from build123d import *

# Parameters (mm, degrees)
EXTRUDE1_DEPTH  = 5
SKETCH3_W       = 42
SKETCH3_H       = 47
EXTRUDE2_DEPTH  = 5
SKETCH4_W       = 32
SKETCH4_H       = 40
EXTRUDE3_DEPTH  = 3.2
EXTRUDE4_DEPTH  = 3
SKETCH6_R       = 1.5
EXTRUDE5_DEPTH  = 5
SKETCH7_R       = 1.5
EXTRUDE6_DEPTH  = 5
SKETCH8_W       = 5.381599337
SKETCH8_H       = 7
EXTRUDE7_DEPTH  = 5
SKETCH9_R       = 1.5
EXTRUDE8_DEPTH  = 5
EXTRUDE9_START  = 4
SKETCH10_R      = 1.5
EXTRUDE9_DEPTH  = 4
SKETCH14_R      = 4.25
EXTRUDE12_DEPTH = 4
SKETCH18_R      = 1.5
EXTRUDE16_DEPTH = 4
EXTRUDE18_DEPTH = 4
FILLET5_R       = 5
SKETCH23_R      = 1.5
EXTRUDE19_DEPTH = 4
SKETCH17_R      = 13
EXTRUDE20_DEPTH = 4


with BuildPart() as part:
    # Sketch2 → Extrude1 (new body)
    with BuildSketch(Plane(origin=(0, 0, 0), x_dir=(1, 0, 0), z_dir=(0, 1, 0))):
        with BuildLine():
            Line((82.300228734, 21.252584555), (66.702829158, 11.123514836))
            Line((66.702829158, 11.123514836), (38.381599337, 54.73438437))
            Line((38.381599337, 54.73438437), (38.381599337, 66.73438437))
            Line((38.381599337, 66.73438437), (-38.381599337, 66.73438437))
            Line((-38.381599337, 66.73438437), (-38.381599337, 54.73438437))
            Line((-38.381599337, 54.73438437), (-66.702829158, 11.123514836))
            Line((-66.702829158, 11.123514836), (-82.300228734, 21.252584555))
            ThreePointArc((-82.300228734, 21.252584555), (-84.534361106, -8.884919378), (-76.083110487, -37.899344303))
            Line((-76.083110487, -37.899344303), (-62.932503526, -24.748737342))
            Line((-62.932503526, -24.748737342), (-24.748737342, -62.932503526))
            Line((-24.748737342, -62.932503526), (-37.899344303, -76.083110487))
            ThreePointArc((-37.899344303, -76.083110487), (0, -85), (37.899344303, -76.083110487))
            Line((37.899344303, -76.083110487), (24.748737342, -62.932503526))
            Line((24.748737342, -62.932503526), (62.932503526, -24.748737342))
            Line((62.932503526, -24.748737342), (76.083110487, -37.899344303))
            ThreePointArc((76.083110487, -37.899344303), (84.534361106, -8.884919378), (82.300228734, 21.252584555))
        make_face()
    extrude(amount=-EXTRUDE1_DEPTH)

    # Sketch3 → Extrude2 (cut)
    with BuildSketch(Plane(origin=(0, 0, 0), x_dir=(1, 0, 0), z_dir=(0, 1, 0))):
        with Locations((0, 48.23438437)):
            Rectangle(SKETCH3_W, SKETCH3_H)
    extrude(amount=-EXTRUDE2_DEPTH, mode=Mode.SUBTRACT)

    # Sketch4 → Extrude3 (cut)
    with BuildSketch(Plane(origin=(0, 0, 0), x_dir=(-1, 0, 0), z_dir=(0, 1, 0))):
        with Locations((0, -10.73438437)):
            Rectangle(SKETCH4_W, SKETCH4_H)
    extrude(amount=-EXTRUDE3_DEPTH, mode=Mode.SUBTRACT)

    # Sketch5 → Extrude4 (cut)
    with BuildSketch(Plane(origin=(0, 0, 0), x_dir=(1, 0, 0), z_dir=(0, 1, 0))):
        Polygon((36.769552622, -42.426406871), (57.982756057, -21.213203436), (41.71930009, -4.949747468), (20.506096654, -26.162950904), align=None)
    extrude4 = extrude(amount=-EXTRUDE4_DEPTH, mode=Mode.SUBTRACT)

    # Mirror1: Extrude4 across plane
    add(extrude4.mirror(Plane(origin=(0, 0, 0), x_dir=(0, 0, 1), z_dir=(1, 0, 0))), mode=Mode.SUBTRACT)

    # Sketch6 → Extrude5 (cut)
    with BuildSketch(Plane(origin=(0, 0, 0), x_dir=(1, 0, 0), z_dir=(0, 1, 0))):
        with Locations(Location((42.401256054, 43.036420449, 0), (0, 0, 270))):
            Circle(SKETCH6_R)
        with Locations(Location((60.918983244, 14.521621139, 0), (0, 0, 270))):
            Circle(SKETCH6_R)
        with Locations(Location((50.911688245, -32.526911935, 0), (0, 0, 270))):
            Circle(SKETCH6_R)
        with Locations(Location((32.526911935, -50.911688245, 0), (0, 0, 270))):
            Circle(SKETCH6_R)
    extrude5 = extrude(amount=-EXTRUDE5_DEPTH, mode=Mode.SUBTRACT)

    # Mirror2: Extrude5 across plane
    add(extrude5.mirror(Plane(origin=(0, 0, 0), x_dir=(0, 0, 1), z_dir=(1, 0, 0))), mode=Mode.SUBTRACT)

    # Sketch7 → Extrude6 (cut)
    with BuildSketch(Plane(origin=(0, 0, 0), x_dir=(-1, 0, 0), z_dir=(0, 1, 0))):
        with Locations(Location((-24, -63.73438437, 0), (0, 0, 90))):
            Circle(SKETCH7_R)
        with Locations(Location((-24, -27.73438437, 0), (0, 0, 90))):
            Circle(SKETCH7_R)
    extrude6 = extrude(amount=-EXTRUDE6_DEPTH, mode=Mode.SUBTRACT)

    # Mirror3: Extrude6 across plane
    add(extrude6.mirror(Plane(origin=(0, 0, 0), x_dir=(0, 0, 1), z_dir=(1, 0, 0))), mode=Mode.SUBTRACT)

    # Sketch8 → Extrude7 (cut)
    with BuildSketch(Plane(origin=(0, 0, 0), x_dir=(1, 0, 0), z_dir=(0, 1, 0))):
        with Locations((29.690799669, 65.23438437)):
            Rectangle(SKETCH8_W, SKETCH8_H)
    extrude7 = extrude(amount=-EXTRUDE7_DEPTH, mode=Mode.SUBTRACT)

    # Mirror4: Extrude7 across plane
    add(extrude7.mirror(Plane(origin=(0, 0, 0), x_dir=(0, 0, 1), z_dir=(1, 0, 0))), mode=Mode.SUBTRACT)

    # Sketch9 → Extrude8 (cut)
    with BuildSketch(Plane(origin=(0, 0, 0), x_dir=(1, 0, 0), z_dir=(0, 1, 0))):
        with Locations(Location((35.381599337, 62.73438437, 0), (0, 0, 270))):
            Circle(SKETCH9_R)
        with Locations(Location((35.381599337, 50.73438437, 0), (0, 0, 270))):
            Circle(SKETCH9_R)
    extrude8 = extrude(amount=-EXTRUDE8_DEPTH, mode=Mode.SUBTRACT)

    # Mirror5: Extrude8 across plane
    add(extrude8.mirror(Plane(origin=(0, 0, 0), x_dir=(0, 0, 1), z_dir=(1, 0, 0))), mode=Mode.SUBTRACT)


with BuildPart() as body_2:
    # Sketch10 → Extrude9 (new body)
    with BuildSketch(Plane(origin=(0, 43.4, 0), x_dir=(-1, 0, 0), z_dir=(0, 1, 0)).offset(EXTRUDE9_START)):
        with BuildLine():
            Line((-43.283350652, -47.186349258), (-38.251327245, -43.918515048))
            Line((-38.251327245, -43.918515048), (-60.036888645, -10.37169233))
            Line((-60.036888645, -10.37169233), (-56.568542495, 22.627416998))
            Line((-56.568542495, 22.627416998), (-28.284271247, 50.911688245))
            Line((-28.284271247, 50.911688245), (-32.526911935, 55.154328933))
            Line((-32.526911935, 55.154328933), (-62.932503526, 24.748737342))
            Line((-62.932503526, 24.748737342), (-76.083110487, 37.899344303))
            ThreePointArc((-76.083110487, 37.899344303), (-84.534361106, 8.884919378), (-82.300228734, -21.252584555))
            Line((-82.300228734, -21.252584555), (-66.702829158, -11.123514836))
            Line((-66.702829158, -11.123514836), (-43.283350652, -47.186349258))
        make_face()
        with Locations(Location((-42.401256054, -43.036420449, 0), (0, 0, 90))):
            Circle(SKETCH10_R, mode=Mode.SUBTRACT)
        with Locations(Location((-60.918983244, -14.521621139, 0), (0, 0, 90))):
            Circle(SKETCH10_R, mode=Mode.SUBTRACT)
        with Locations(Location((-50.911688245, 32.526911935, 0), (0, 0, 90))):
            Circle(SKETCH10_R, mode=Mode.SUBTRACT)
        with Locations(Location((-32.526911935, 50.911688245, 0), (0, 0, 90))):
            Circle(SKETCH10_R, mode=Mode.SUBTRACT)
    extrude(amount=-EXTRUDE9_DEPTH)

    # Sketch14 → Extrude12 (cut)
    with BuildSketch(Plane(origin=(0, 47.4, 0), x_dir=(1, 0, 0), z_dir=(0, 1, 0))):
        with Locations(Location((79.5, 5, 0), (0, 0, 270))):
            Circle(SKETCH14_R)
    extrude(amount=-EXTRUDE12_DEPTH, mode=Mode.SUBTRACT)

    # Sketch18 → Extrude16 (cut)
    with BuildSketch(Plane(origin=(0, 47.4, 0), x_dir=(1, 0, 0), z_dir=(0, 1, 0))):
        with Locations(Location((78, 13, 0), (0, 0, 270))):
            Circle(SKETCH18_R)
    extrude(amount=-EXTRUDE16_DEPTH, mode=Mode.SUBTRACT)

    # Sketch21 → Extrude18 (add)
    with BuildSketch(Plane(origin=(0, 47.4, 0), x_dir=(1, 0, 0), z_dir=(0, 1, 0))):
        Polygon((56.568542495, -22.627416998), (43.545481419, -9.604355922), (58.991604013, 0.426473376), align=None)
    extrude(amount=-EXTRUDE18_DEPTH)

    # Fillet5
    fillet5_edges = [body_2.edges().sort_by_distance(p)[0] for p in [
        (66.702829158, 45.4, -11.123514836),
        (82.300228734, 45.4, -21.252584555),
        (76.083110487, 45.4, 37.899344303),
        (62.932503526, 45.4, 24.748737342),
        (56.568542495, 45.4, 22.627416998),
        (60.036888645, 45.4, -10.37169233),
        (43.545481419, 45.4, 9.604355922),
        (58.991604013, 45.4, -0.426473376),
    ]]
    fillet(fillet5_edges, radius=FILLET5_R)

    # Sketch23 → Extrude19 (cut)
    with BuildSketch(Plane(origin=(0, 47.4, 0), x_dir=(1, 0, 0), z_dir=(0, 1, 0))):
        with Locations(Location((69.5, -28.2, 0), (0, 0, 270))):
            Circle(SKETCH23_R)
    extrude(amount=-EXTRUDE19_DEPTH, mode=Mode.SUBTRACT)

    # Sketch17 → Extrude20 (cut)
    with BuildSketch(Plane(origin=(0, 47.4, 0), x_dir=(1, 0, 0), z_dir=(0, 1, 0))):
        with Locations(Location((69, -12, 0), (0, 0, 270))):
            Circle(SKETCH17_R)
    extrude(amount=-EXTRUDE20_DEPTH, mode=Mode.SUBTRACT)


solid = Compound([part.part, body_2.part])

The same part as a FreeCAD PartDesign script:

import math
import FreeCAD as App
import Part
import Sketcher
Q = App.Units.Quantity


def edges_at(feature, points):
    """Names of the edges that pass closest to the given points."""
    edges = feature.Shape.Edges
    near = lambda p: min(range(len(edges)), key=lambda i: edges[i].distToShape(Part.Vertex(*p))[0])
    return sorted({f"Edge{near(p) + 1}" for p in points})

doc = App.newDocument("Part")
body = doc.addObject("PartDesign::Body", "Body")

# Sketch on XZ plane
sketch1 = doc.addObject("Sketcher::SketchObject", "Sketch")
body.addObject(sketch1)
sketch1.AttachmentSupport = (doc.XZ_Plane, [""])
sketch1.MapMode = "FlatFace"
sketch1.addGeometry([
    Part.LineSegment(App.Vector(82, -21, 0), App.Vector(67, -11, 0)),  # 0
    Part.LineSegment(App.Vector(67, -11, 0), App.Vector(38, -55, 0)),  # 1
    Part.LineSegment(App.Vector(38, -55, 0), App.Vector(38, -67, 0)),  # 2
    Part.LineSegment(App.Vector(38, -67, 0), App.Vector(-38, -67, 0)),  # 3
    Part.LineSegment(App.Vector(-38, -67, 0), App.Vector(-38, -55, 0)),  # 4
    Part.LineSegment(App.Vector(-38, -55, 0), App.Vector(-67, -11, 0)),  # 5
    Part.LineSegment(App.Vector(-67, -11, 0), App.Vector(-82, -21, 0)),  # 6
    Part.ArcOfCircle(Part.Circle(App.Vector(0, 0, 0), App.Vector(0, 0, 1), 85), math.radians(154), math.radians(194)),  # 7
    Part.LineSegment(App.Vector(-76, 38, 0), App.Vector(-63, 25, 0)),  # 8
    Part.LineSegment(App.Vector(-63, 25, 0), App.Vector(-25, 63, 0)),  # 9
    Part.LineSegment(App.Vector(-25, 63, 0), App.Vector(-38, 76, 0)),  # 10
    Part.ArcOfCircle(Part.Circle(App.Vector(0, 0, 0), App.Vector(0, 0, 1), 85), math.radians(64), math.radians(116)),  # 11
    Part.LineSegment(App.Vector(38, 76, 0), App.Vector(25, 63, 0)),  # 12
    Part.LineSegment(App.Vector(25, 63, 0), App.Vector(63, 25, 0)),  # 13
    Part.LineSegment(App.Vector(63, 25, 0), App.Vector(76, 38, 0)),  # 14
    Part.ArcOfCircle(Part.Circle(App.Vector(0, 0, 0), App.Vector(0, 0, 1), 85), math.radians(-14), math.radians(26)),  # 15
], False)
sketch1.addConstraint([
    Sketcher.Constraint("Coincident", 0, 2, 1, 1),
    Sketcher.Constraint("Coincident", 1, 2, 2, 1),
    Sketcher.Constraint("Coincident", 2, 2, 3, 1),
    Sketcher.Constraint("Coincident", 3, 2, 4, 1),
    Sketcher.Constraint("Coincident", 4, 2, 5, 1),
    Sketcher.Constraint("Coincident", 5, 2, 6, 1),
    Sketcher.Constraint("Coincident", 6, 2, 7, 2),
    Sketcher.Constraint("Coincident", 7, 1, 8, 1),
    Sketcher.Constraint("Coincident", 8, 2, 9, 1),
    Sketcher.Constraint("Coincident", 9, 2, 10, 1),
    Sketcher.Constraint("Coincident", 10, 2, 11, 2),
    Sketcher.Constraint("Coincident", 11, 1, 12, 1),
    Sketcher.Constraint("Coincident", 12, 2, 13, 1),
    Sketcher.Constraint("Coincident", 13, 2, 14, 1),
    Sketcher.Constraint("Coincident", 14, 2, 15, 2),
    Sketcher.Constraint("Coincident", 15, 1, 0, 1),
    Sketcher.Constraint("Vertical", 2),
    Sketcher.Constraint("Horizontal", 3),
    Sketcher.Constraint("Vertical", 4),
    Sketcher.Constraint("Coincident", 7, 3, -1, 1),
    Sketcher.Constraint("Coincident", 11, 3, -1, 1),
    Sketcher.Constraint("Coincident", 15, 3, -1, 1),
    Sketcher.Constraint("Equal", 7, 11),
    Sketcher.Constraint("Equal", 11, 15),
    Sketcher.Constraint("Symmetric", 1, 2, 4, 2, -2),
    Sketcher.Constraint("Symmetric", 0, 2, 5, 2, -2),
    Sketcher.Constraint("Symmetric", 9, 2, 12, 2, -2),
    Sketcher.Constraint("Symmetric", 8, 2, 13, 2, -2),
    Sketcher.Constraint("Perpendicular", 0, 1),
    Sketcher.Constraint("Perpendicular", 5, 6),
    Sketcher.Constraint("Perpendicular", 8, 9),
    Sketcher.Constraint("Perpendicular", 9, 10),
    Sketcher.Constraint("Perpendicular", 10, 12),
    Sketcher.Constraint("Perpendicular", 12, 13),
    Sketcher.Constraint("Perpendicular", 13, 14),
    Sketcher.Constraint("Equal", 6, 8),
    Sketcher.Constraint("Equal", 8, 10),
    Sketcher.Constraint("Radius", 7, 85.0),
    Sketcher.Constraint("DistanceY", 2, 2, 2, 1, 12.0),
    Sketcher.Constraint("Angle", 0, Q("147 deg")),
    Sketcher.Constraint("Distance", 1, 52.0),
    Sketcher.Constraint("Distance", 9, 54.0),
    Sketcher.Constraint("DistanceX", 3, 2, 3, 1, 76.763199),
    Sketcher.Constraint("DistanceX", 6, 2, 5, 2, 15.5974),
])
pad1 = doc.addObject("PartDesign::Pad", "Pad")
body.addObject(pad1)
pad1.Profile = sketch1
pad1.Length = 5

# Sketch on XZ plane
sketch2 = doc.addObject("Sketcher::SketchObject", "Sketch001")
body.addObject(sketch2)
sketch2.AttachmentSupport = (doc.XZ_Plane, [""])
sketch2.MapMode = "FlatFace"
sketch2.addGeometry([
    Part.LineSegment(App.Vector(-21, -72, 0), App.Vector(-21, -25, 0)),
    Part.LineSegment(App.Vector(-21, -25, 0), App.Vector(21, -25, 0)),
    Part.LineSegment(App.Vector(21, -25, 0), App.Vector(21, -72, 0)),
    Part.LineSegment(App.Vector(21, -72, 0), App.Vector(-21, -72, 0)),
], False)
sketch2.addConstraint([
    Sketcher.Constraint("Coincident", 0, 2, 1, 1),
    Sketcher.Constraint("Coincident", 1, 2, 2, 1),
    Sketcher.Constraint("Coincident", 2, 2, 3, 1),
    Sketcher.Constraint("Coincident", 3, 2, 0, 1),
    Sketcher.Constraint("Vertical", 0),
    Sketcher.Constraint("Horizontal", 1),
    Sketcher.Constraint("Vertical", 2),
    Sketcher.Constraint("Horizontal", 3),
    Sketcher.Constraint("DistanceX", 1, 1, 1, 2, 42.0),
    Sketcher.Constraint("DistanceY", 0, 1, 0, 2, 47.0),
    Sketcher.Constraint("DistanceX", 0, 2, -1, 1, 21.0),
    Sketcher.Constraint("DistanceY", 0, 2, -1, 1, 24.734384),
])
pocket1 = doc.addObject("PartDesign::Pocket", "Pocket")
body.addObject(pocket1)
pocket1.Profile = sketch2
pocket1.Length = 5
pocket1.Reversed = True

# Sketch on XZ plane
sketch3 = doc.addObject("Sketcher::SketchObject", "Sketch002")
body.addObject(sketch3)
sketch3.AttachmentSupport = (doc.XZ_Plane, [""])
sketch3.MapMode = "FlatFace"
sketch3.addGeometry([
    Part.LineSegment(App.Vector(16, 9, 0), App.Vector(16, -31, 0)),
    Part.LineSegment(App.Vector(16, -31, 0), App.Vector(-16, -31, 0)),
    Part.LineSegment(App.Vector(-16, -31, 0), App.Vector(-16, 9, 0)),
    Part.LineSegment(App.Vector(-16, 9, 0), App.Vector(16, 9, 0)),
], False)
sketch3.addConstraint([
    Sketcher.Constraint("Coincident", 0, 2, 1, 1),
    Sketcher.Constraint("Coincident", 1, 2, 2, 1),
    Sketcher.Constraint("Coincident", 2, 2, 3, 1),
    Sketcher.Constraint("Coincident", 3, 2, 0, 1),
    Sketcher.Constraint("Vertical", 0),
    Sketcher.Constraint("Horizontal", 1),
    Sketcher.Constraint("Vertical", 2),
    Sketcher.Constraint("Horizontal", 3),
    Sketcher.Constraint("DistanceX", 1, 2, 1, 1, 32.0),
    Sketcher.Constraint("DistanceY", 0, 2, 0, 1, 40.0),
    Sketcher.Constraint("DistanceX", -1, 1, 0, 2, 16.0),
    Sketcher.Constraint("DistanceY", 0, 2, -1, 1, 30.734384),
])
pocket2 = doc.addObject("PartDesign::Pocket", "Pocket001")
body.addObject(pocket2)
pocket2.Profile = sketch3
pocket2.Length = 3.2
pocket2.Reversed = True

# Sketch on XZ plane
sketch4 = doc.addObject("Sketcher::SketchObject", "Sketch003")
body.addObject(sketch4)
sketch4.AttachmentSupport = (doc.XZ_Plane, [""])
sketch4.MapMode = "FlatFace"
sketch4.addGeometry([
    Part.LineSegment(App.Vector(37, 42, 0), App.Vector(58, 21, 0)),
    Part.LineSegment(App.Vector(58, 21, 0), App.Vector(42, 5, 0)),
    Part.LineSegment(App.Vector(42, 5, 0), App.Vector(21, 26, 0)),
    Part.LineSegment(App.Vector(21, 26, 0), App.Vector(37, 42, 0)),
], False)
sketch4.addConstraint([
    Sketcher.Constraint("Coincident", 0, 2, 1, 1),
    Sketcher.Constraint("Coincident", 1, 2, 2, 1),
    Sketcher.Constraint("Coincident", 2, 2, 3, 1),
    Sketcher.Constraint("Coincident", 3, 2, 0, 1),
    Sketcher.Constraint("Perpendicular", 0, 1),
    Sketcher.Constraint("Perpendicular", 1, 2),
    Sketcher.Constraint("Perpendicular", 2, 3),
    Sketcher.Constraint("Angle", 0, Q("-45 deg")),
    Sketcher.Constraint("Distance", 0, 30.0),
    Sketcher.Constraint("Distance", 1, 23.0),
    Sketcher.Constraint("DistanceX", -1, 1, 1, 2, 41.7193),
    Sketcher.Constraint("DistanceY", -1, 1, 2, 2, 26.162951),
])
pocket3 = doc.addObject("PartDesign::Pocket", "Pocket002")
body.addObject(pocket3)
pocket3.Profile = sketch4
pocket3.Length = 3
pocket3.Reversed = True
doc.recompute()

mirrored = doc.addObject("PartDesign::Mirrored", "Mirrored")
body.addObject(mirrored)
mirrored.Originals = [pocket3]
mirrored.MirrorPlane = (doc.YZ_Plane, [""])
body.Tip = mirrored

# Sketch on XZ plane
sketch5 = doc.addObject("Sketcher::SketchObject", "Sketch004")
body.addObject(sketch5)
sketch5.AttachmentSupport = (doc.XZ_Plane, [""])
sketch5.MapMode = "FlatFace"
sketch5.addGeometry([
    Part.Circle(App.Vector(42.4, -43, 0), App.Vector(0, 0, 1), 1.5),
    Part.Circle(App.Vector(60.9, -14.5, 0), App.Vector(0, 0, 1), 1.5),
    Part.Circle(App.Vector(50.9, 32.5, 0), App.Vector(0, 0, 1), 1.5),
    Part.Circle(App.Vector(32.5, 50.9, 0), App.Vector(0, 0, 1), 1.5),
], False)
sketch5.addConstraint([
    Sketcher.Constraint("Equal", 0, 1),
    Sketcher.Constraint("Equal", 1, 2),
    Sketcher.Constraint("Equal", 2, 3),
    Sketcher.Constraint("Diameter", 0, 3.0),
    Sketcher.Constraint("DistanceY", 0, 3, 1, 3, 28.514799),
    Sketcher.Constraint("DistanceY", 0, 3, -1, 1, 43.03642),
    Sketcher.Constraint("DistanceX", -1, 1, 2, 3, 50.911688),
    Sketcher.Constraint("DistanceY", -1, 1, 2, 3, 32.526912),
    Sketcher.Constraint("DistanceX", -1, 1, 3, 3, 32.526912),
    Sketcher.Constraint("DistanceY", -1, 1, 3, 3, 50.911688),
    Sketcher.Constraint("DistanceX", 3, 3, 1, 3, 28.392071),
    Sketcher.Constraint("DistanceX", -1, 1, 0, 3, 42.401256),
])
pocket4 = doc.addObject("PartDesign::Pocket", "Pocket003")
body.addObject(pocket4)
pocket4.Profile = sketch5
pocket4.Length = 5
pocket4.Reversed = True
doc.recompute()

mirrored2 = doc.addObject("PartDesign::Mirrored", "Mirrored001")
body.addObject(mirrored2)
mirrored2.Originals = [pocket4]
mirrored2.MirrorPlane = (doc.YZ_Plane, [""])
body.Tip = mirrored2

# Sketch on XZ plane
sketch6 = doc.addObject("Sketcher::SketchObject", "Sketch005")
body.addObject(sketch6)
sketch6.AttachmentSupport = (doc.XZ_Plane, [""])
sketch6.MapMode = "FlatFace"
sketch6.addGeometry([
    Part.Circle(App.Vector(24, -63.7, 0), App.Vector(0, 0, 1), 1.5),
    Part.Circle(App.Vector(24, -27.7, 0), App.Vector(0, 0, 1), 1.5),
], False)
sketch6.addConstraint([
    Sketcher.Constraint("Equal", 0, 1),
    Sketcher.Constraint("Vertical", 0, 3, 1, 3),
    Sketcher.Constraint("Diameter", 0, 3.0),
    Sketcher.Constraint("DistanceX", -1, 1, 0, 3, 24.0),
    Sketcher.Constraint("DistanceY", 0, 3, 1, 3, 36.0),
    Sketcher.Constraint("DistanceY", 0, 3, -1, 1, 63.734384),
])
pocket5 = doc.addObject("PartDesign::Pocket", "Pocket004")
body.addObject(pocket5)
pocket5.Profile = sketch6
pocket5.Length = 5
pocket5.Reversed = True
doc.recompute()

mirrored3 = doc.addObject("PartDesign::Mirrored", "Mirrored002")
body.addObject(mirrored3)
mirrored3.Originals = [pocket5]
mirrored3.MirrorPlane = (doc.YZ_Plane, [""])
body.Tip = mirrored3

# Sketch on XZ plane
sketch7 = doc.addObject("Sketcher::SketchObject", "Sketch006")
body.addObject(sketch7)
sketch7.AttachmentSupport = (doc.XZ_Plane, [""])
sketch7.MapMode = "FlatFace"
sketch7.addGeometry([
    Part.LineSegment(App.Vector(27, -69, 0), App.Vector(27, -62, 0)),
    Part.LineSegment(App.Vector(27, -62, 0), App.Vector(32, -62, 0)),
    Part.LineSegment(App.Vector(32, -62, 0), App.Vector(32, -69, 0)),
    Part.LineSegment(App.Vector(32, -69, 0), App.Vector(27, -69, 0)),
], False)
sketch7.addConstraint([
    Sketcher.Constraint("Coincident", 0, 2, 1, 1),
    Sketcher.Constraint("Coincident", 1, 2, 2, 1),
    Sketcher.Constraint("Coincident", 2, 2, 3, 1),
    Sketcher.Constraint("Coincident", 3, 2, 0, 1),
    Sketcher.Constraint("Vertical", 0),
    Sketcher.Constraint("Horizontal", 1),
    Sketcher.Constraint("Vertical", 2),
    Sketcher.Constraint("Horizontal", 3),
    Sketcher.Constraint("DistanceY", 0, 1, 0, 2, 7.0),
    Sketcher.Constraint("DistanceX", -1, 1, 0, 2, 27.0),
    Sketcher.Constraint("DistanceX", 1, 1, 1, 2, 5.381599),
    Sketcher.Constraint("DistanceY", 0, 2, -1, 1, 61.734384),
])
pocket6 = doc.addObject("PartDesign::Pocket", "Pocket005")
body.addObject(pocket6)
pocket6.Profile = sketch7
pocket6.Length = 5
pocket6.Reversed = True
doc.recompute()

mirrored4 = doc.addObject("PartDesign::Mirrored", "Mirrored003")
body.addObject(mirrored4)
mirrored4.Originals = [pocket6]
mirrored4.MirrorPlane = (doc.YZ_Plane, [""])
body.Tip = mirrored4

# Sketch on XZ plane
sketch8 = doc.addObject("Sketcher::SketchObject", "Sketch007")
body.addObject(sketch8)
sketch8.AttachmentSupport = (doc.XZ_Plane, [""])
sketch8.MapMode = "FlatFace"
sketch8.addGeometry([
    Part.Circle(App.Vector(35.4, -62.7, 0), App.Vector(0, 0, 1), 1.5),
    Part.Circle(App.Vector(35.4, -50.7, 0), App.Vector(0, 0, 1), 1.5),
], False)
sketch8.addConstraint([
    Sketcher.Constraint("Equal", 0, 1),
    Sketcher.Constraint("Vertical", 0, 3, 1, 3),
    Sketcher.Constraint("Diameter", 0, 3.0),
    Sketcher.Constraint("DistanceY", 0, 3, 1, 3, 12.0),
    Sketcher.Constraint("DistanceX", -1, 1, 0, 3, 35.381599),
    Sketcher.Constraint("DistanceY", 0, 3, -1, 1, 62.734384),
])
pocket7 = doc.addObject("PartDesign::Pocket", "Pocket006")
body.addObject(pocket7)
pocket7.Profile = sketch8
pocket7.Length = 5
pocket7.Reversed = True
doc.recompute()

mirrored5 = doc.addObject("PartDesign::Mirrored", "Mirrored004")
body.addObject(mirrored5)
mirrored5.Originals = [pocket7]
mirrored5.MirrorPlane = (doc.YZ_Plane, [""])
body.Tip = mirrored5
body2 = doc.addObject("PartDesign::Body", "Body001")

# Sketch on XZ plane
sketch9 = doc.addObject("Sketcher::SketchObject", "Sketch008")
body2.addObject(sketch9)
sketch9.AttachmentSupport = (doc.getObject("XZ_Plane001"), [""])
sketch9.MapMode = "FlatFace"
sketch9.AttachmentOffset = App.Placement(App.Vector(0, 0, -47.4), App.Rotation())
sketch9.addGeometry([
    Part.LineSegment(App.Vector(43.3, -47.2, 0), App.Vector(38.3, -43.9, 0)),  # 0
    Part.LineSegment(App.Vector(38.3, -43.9, 0), App.Vector(60, -10.4, 0)),  # 1
    Part.LineSegment(App.Vector(60, -10.4, 0), App.Vector(56.6, 22.6, 0)),  # 2
    Part.LineSegment(App.Vector(56.6, 22.6, 0), App.Vector(28.3, 50.9, 0)),  # 3
    Part.LineSegment(App.Vector(28.3, 50.9, 0), App.Vector(32.5, 55.2, 0)),  # 4
    Part.LineSegment(App.Vector(32.5, 55.2, 0), App.Vector(62.9, 24.7, 0)),  # 5
    Part.LineSegment(App.Vector(62.9, 24.7, 0), App.Vector(76.1, 37.9, 0)),  # 6
    Part.ArcOfCircle(Part.Circle(App.Vector(0, 0, 0), App.Vector(0, 0, 1), 85), math.radians(-14), math.radians(26)),  # 7
    Part.LineSegment(App.Vector(82.3, -21.3, 0), App.Vector(66.7, -11.1, 0)),  # 8
    Part.LineSegment(App.Vector(66.7, -11.1, 0), App.Vector(43.3, -47.2, 0)),  # 9
    Part.Circle(App.Vector(60.9, -14.5, 0), App.Vector(0, 0, 1), 1.5),  # 10
    Part.Circle(App.Vector(42.4, -43, 0), App.Vector(0, 0, 1), 1.5),  # 11
    Part.Circle(App.Vector(50.9, 32.5, 0), App.Vector(0, 0, 1), 1.5),  # 12
    Part.Circle(App.Vector(32.5, 50.9, 0), App.Vector(0, 0, 1), 1.5),  # 13
], False)
sketch9.addConstraint([
    Sketcher.Constraint("Coincident", 0, 2, 1, 1),
    Sketcher.Constraint("Coincident", 1, 2, 2, 1),
    Sketcher.Constraint("Coincident", 2, 2, 3, 1),
    Sketcher.Constraint("Coincident", 3, 2, 4, 1),
    Sketcher.Constraint("Coincident", 4, 2, 5, 1),
    Sketcher.Constraint("Coincident", 5, 2, 6, 1),
    Sketcher.Constraint("Coincident", 6, 2, 7, 2),
    Sketcher.Constraint("Coincident", 7, 1, 8, 1),
    Sketcher.Constraint("Coincident", 8, 2, 9, 1),
    Sketcher.Constraint("Coincident", 9, 2, 0, 1),
    Sketcher.Constraint("Coincident", 7, 3, -1, 1),
    Sketcher.Constraint("Equal", 10, 11),
    Sketcher.Constraint("Equal", 11, 12),
    Sketcher.Constraint("Equal", 12, 13),
    Sketcher.Constraint("Perpendicular", 0, 1),
    Sketcher.Constraint("Perpendicular", 3, 4),
    Sketcher.Constraint("Perpendicular", 4, 5),
    Sketcher.Constraint("Perpendicular", 5, 6),
    Sketcher.Constraint("Perpendicular", 1, 8),
    Sketcher.Constraint("Perpendicular", 8, 9),
    Sketcher.Constraint("Horizontal", 13, 3, 3, 2),
    Sketcher.Constraint("Vertical", 13, 3, 4, 2),
    Sketcher.Constraint("Equal", 1, 3),
    Sketcher.Constraint("Equal", 0, 4),
    Sketcher.Constraint("Equal", 6, 8),
    Sketcher.Constraint("Equal", 5, 9),
    Sketcher.Constraint("Diameter", 10, 3.0),
    Sketcher.Constraint("Radius", 7, 85.0),
    Sketcher.Constraint("Angle", 0, Q("147 deg")),
    Sketcher.Constraint("Angle", 2, Q("96 deg")),
    Sketcher.Constraint("Angle", 3, Q("135 deg")),
    Sketcher.Constraint("Distance", 0, 6.0),
    Sketcher.Constraint("Distance", 1, 40.0),
    Sketcher.Constraint("Distance", 5, 43.0),
    Sketcher.Constraint("DistanceY", 11, 3, 10, 3, 28.514799),
    Sketcher.Constraint("DistanceX", 12, 3, 1, 2, 9.1252),
    Sketcher.Constraint("DistanceX", 13, 3, 6, 2, 43.556199),
    Sketcher.Constraint("DistanceY", 10, 3, -1, 1, 14.521621),
    Sketcher.Constraint("DistanceX", -1, 1, 12, 3, 50.911688),
    Sketcher.Constraint("DistanceY", -1, 1, 12, 3, 32.526912),
    Sketcher.Constraint("DistanceX", 13, 3, 10, 3, 28.392071),
    Sketcher.Constraint("DistanceX", 0, 2, 11, 3, 4.149929),
])
pad2 = doc.addObject("PartDesign::Pad", "Pad001")
body2.addObject(pad2)
pad2.Profile = sketch9
pad2.Length = 4

# Sketch on XZ plane
sketch10 = doc.addObject("Sketcher::SketchObject", "Sketch009")
body2.addObject(sketch10)
sketch10.AttachmentSupport = (doc.getObject("XZ_Plane001"), [""])
sketch10.MapMode = "FlatFace"
sketch10.AttachmentOffset = App.Placement(App.Vector(0, 0, -47.4), App.Rotation())
sketch10.addGeometry(Part.Circle(App.Vector(79.5, -5, 0), App.Vector(0, 0, 1), 4.2), False)
sketch10.addConstraint([
    Sketcher.Constraint("Diameter", 0, 8.5),
    Sketcher.Constraint("DistanceY", 0, 3, -1, 1, 5.0),
    Sketcher.Constraint("DistanceX", -1, 1, 0, 3, 79.5),
])
pocket8 = doc.addObject("PartDesign::Pocket", "Pocket007")
body2.addObject(pocket8)
pocket8.Profile = sketch10
pocket8.Length = 4
pocket8.Reversed = True

# Sketch on XZ plane
sketch11 = doc.addObject("Sketcher::SketchObject", "Sketch010")
body2.addObject(sketch11)
sketch11.AttachmentSupport = (doc.getObject("XZ_Plane001"), [""])
sketch11.MapMode = "FlatFace"
sketch11.AttachmentOffset = App.Placement(App.Vector(0, 0, -47.4), App.Rotation())
sketch11.addGeometry(Part.Circle(App.Vector(78, -13, 0), App.Vector(0, 0, 1), 1.5), False)
sketch11.addConstraint([
    Sketcher.Constraint("Diameter", 0, 3.0),
    Sketcher.Constraint("DistanceX", -1, 1, 0, 3, 78.0),
    Sketcher.Constraint("DistanceY", 0, 3, -1, 1, 13.0),
])
pocket9 = doc.addObject("PartDesign::Pocket", "Pocket008")
body2.addObject(pocket9)
pocket9.Profile = sketch11
pocket9.Length = 4
pocket9.Reversed = True

# Sketch on XZ plane
sketch12 = doc.addObject("Sketcher::SketchObject", "Sketch011")
body2.addObject(sketch12)
sketch12.AttachmentSupport = (doc.getObject("XZ_Plane001"), [""])
sketch12.MapMode = "FlatFace"
sketch12.AttachmentOffset = App.Placement(App.Vector(0, 0, -47.4), App.Rotation())
sketch12.addGeometry([
    Part.LineSegment(App.Vector(44, 10, 0), App.Vector(57, 23, 0)),
    Part.LineSegment(App.Vector(57, 23, 0), App.Vector(59, 0, 0)),
    Part.LineSegment(App.Vector(59, 0, 0), App.Vector(44, 10, 0)),
], False)
sketch12.addConstraint([
    Sketcher.Constraint("Coincident", 0, 2, 1, 1),
    Sketcher.Constraint("Coincident", 1, 2, 2, 1),
    Sketcher.Constraint("Coincident", 2, 2, 0, 1),
    Sketcher.Constraint("Equal", 0, 2),
    Sketcher.Constraint("Angle", 0, Q("45 deg")),
    Sketcher.Constraint("Angle", 1, Q("-84 deg")),
    Sketcher.Constraint("Distance", 0, 18.41739),
    Sketcher.Constraint("DistanceX", -1, 1, 2, 2, 43.545481),
    Sketcher.Constraint("DistanceY", -1, 1, 0, 2, 22.627417),
])
pad3 = doc.addObject("PartDesign::Pad", "Pad002")
body2.addObject(pad3)
pad3.Profile = sketch12
pad3.Length = 4
doc.recompute()

fillet = doc.addObject("PartDesign::Fillet", "Fillet")
body2.addObject(fillet)
fillet.Base = (pad3, edges_at(pad3, [
    (66.703, 45.4, -11.124),
    (82.3, 45.4, -21.253),
    (76.083, 45.4, 37.899),
    (62.933, 45.4, 24.749),
    (56.569, 45.4, 22.627),
    (60.037, 45.4, -10.372),
    (43.545, 45.4, 9.604),
    (58.992, 45.4, -0.426),
]))
fillet.Radius = 5

# Sketch on XZ plane
sketch13 = doc.addObject("Sketcher::SketchObject", "Sketch012")
body2.addObject(sketch13)
sketch13.AttachmentSupport = (doc.getObject("XZ_Plane001"), [""])
sketch13.MapMode = "FlatFace"
sketch13.AttachmentOffset = App.Placement(App.Vector(0, 0, -47.4), App.Rotation())
sketch13.addGeometry(Part.Circle(App.Vector(69.5, 28.2, 0), App.Vector(0, 0, 1), 1.5), False)
sketch13.addConstraint([
    Sketcher.Constraint("Diameter", 0, 3.0),
    Sketcher.Constraint("DistanceX", -1, 1, 0, 3, 69.5),
    Sketcher.Constraint("DistanceY", -1, 1, 0, 3, 28.2),
])
pocket10 = doc.addObject("PartDesign::Pocket", "Pocket009")
body2.addObject(pocket10)
pocket10.Profile = sketch13
pocket10.Length = 4
pocket10.Reversed = True

# Sketch on XZ plane
sketch14 = doc.addObject("Sketcher::SketchObject", "Sketch013")
body2.addObject(sketch14)
sketch14.AttachmentSupport = (doc.getObject("XZ_Plane001"), [""])
sketch14.MapMode = "FlatFace"
sketch14.AttachmentOffset = App.Placement(App.Vector(0, 0, -47.4), App.Rotation())
sketch14.addGeometry(Part.Circle(App.Vector(69, 12, 0), App.Vector(0, 0, 1), 13), False)
sketch14.addConstraint([
    Sketcher.Constraint("Diameter", 0, 26.0),
    Sketcher.Constraint("DistanceX", -1, 1, 0, 3, 69.0),
    Sketcher.Constraint("DistanceY", -1, 1, 0, 3, 12.0),
])
pocket11 = doc.addObject("PartDesign::Pocket", "Pocket010")
body2.addObject(pocket11)
pocket11.Profile = sketch14
pocket11.Length = 4
pocket11.Reversed = True

doc.recompute()
